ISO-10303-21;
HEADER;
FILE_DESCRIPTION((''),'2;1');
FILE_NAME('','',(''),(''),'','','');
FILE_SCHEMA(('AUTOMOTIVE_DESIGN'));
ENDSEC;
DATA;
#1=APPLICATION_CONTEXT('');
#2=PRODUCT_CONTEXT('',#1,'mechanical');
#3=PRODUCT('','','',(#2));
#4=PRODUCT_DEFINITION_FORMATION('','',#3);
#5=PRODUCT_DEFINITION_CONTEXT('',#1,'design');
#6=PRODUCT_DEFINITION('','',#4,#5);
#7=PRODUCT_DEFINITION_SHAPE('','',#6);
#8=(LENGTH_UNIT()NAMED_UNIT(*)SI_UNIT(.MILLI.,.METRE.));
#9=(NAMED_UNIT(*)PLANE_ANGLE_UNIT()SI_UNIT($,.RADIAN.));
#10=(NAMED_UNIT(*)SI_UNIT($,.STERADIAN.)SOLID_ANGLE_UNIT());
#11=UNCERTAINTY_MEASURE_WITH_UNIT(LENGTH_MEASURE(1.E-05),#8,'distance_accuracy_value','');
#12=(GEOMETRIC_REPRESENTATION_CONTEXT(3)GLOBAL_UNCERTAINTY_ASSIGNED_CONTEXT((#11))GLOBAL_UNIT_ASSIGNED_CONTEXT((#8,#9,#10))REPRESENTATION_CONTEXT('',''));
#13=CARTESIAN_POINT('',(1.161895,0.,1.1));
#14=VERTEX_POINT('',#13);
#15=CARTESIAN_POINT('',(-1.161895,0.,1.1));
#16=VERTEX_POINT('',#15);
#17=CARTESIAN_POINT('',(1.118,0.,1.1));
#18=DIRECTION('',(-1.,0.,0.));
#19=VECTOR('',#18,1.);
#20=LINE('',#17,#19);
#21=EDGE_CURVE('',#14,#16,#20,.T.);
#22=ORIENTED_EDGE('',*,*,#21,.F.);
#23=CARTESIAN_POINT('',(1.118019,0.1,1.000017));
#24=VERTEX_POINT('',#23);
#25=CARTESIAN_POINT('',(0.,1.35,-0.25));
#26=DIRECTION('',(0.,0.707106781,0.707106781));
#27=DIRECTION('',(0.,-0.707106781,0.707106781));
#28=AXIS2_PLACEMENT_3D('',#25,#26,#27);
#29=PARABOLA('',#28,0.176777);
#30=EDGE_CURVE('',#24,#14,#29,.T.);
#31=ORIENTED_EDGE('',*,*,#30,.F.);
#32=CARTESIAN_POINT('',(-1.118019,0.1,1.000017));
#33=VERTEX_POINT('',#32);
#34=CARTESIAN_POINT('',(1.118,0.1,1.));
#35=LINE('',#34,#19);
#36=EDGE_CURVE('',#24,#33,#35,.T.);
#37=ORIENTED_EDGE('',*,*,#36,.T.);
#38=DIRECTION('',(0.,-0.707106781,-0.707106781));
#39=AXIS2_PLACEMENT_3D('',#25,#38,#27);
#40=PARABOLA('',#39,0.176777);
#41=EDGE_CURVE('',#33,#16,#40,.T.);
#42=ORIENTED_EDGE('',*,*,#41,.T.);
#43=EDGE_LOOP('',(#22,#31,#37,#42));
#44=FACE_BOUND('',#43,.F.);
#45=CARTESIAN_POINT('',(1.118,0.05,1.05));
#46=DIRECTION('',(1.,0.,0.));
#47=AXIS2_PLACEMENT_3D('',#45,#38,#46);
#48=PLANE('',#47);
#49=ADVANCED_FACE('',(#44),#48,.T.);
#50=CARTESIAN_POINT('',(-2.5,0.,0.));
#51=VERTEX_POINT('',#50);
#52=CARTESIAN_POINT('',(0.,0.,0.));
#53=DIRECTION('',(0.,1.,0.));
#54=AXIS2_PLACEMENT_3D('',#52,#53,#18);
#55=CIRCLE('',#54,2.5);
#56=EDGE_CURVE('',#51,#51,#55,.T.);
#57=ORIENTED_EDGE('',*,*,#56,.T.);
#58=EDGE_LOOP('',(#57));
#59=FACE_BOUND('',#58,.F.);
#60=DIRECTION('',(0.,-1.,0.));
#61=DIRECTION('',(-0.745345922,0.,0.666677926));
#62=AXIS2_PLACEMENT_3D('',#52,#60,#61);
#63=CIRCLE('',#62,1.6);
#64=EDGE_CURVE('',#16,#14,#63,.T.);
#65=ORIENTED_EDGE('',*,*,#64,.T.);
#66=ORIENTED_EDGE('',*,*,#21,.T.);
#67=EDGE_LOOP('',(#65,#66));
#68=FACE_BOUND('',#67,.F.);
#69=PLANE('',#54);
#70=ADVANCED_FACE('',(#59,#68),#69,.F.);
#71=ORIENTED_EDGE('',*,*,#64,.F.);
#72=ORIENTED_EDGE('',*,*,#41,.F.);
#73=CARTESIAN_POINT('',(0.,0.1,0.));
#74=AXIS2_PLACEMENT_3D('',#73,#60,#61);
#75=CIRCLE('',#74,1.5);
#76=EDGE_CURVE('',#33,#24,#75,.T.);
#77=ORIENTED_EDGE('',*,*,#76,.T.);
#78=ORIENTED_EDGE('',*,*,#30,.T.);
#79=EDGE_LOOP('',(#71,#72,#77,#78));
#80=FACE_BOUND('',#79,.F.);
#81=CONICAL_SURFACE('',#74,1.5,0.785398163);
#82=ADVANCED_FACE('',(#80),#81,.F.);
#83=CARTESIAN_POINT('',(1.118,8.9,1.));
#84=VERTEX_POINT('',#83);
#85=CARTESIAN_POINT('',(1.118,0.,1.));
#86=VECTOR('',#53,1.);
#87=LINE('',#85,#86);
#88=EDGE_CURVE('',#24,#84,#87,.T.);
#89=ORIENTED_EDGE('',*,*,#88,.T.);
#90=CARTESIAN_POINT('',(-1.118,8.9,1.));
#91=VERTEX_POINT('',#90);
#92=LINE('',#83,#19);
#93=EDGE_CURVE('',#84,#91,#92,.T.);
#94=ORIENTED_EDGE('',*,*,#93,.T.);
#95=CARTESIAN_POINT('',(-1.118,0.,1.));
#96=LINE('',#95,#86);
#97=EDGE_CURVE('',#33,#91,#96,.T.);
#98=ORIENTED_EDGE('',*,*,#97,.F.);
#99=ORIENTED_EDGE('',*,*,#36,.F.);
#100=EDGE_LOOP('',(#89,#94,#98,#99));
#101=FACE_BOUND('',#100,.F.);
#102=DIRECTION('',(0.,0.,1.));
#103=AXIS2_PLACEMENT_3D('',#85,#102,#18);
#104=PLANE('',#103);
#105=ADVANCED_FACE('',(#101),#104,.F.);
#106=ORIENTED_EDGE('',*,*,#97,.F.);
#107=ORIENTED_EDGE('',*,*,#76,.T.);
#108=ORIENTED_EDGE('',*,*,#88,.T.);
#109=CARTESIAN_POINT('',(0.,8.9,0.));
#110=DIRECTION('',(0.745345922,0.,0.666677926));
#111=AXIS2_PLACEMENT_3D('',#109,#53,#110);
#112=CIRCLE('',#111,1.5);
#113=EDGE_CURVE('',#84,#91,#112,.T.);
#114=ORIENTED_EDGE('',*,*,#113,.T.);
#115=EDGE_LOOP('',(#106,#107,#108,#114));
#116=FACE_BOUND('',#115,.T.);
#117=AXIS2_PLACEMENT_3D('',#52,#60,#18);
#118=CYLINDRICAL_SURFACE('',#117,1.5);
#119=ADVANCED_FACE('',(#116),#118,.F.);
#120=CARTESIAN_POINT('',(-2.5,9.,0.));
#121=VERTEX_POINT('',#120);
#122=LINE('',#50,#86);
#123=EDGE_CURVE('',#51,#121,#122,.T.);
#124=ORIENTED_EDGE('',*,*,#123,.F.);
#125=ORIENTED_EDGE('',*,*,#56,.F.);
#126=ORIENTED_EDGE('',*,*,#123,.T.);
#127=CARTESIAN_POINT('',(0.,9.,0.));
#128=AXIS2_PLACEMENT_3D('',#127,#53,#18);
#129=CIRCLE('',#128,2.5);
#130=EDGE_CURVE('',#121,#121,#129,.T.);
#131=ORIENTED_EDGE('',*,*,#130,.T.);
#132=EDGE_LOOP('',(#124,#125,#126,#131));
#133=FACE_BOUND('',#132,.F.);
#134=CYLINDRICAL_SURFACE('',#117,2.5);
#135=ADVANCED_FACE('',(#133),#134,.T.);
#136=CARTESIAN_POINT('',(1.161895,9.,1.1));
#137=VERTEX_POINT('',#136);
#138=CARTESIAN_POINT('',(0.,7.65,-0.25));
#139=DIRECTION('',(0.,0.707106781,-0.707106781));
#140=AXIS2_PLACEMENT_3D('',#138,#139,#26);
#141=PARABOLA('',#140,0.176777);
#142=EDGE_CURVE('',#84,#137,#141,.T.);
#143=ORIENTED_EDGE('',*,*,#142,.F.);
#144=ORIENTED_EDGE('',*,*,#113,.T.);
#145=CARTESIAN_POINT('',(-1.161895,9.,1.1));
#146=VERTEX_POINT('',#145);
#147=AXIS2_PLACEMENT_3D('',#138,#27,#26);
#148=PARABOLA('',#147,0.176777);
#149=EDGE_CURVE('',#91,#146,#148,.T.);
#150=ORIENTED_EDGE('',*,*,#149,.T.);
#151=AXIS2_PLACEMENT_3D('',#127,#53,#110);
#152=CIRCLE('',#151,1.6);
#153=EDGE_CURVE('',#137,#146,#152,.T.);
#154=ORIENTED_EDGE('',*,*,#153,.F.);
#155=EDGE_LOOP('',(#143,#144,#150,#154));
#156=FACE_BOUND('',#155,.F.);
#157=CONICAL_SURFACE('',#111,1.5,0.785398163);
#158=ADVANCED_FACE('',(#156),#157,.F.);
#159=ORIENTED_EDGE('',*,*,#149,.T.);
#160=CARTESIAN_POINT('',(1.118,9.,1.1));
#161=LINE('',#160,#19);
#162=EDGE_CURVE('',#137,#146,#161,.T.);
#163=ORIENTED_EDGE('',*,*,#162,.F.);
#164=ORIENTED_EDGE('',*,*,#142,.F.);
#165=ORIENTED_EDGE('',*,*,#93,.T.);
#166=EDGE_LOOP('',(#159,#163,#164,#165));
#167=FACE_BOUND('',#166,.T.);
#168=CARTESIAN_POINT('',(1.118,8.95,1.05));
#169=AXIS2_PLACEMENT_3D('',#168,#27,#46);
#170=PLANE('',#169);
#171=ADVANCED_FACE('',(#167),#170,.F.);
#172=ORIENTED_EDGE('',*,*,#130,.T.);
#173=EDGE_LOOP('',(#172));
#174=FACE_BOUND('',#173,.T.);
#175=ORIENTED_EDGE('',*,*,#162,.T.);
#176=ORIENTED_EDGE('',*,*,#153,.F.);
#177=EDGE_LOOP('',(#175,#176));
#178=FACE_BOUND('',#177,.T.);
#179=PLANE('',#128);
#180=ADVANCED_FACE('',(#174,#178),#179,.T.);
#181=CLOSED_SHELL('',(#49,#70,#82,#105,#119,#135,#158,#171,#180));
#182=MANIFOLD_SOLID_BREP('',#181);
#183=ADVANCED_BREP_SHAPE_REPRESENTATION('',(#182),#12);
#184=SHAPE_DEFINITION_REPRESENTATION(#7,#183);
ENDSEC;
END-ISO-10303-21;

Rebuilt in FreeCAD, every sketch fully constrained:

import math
import FreeCAD as App
import Part
import Sketcher
from FreeCAD import Vector


def edges_at(feature, points):
    """Names of the edges that pass closest to the given points."""
    edges = feature.Shape.Edges
    near = lambda p: min(range(len(edges)), key=lambda i: edges[i].distToShape(Part.Vertex(*p))[0])
    return sorted({f"Edge{near(p) + 1}" for p in points})

doc = App.newDocument("Part")
body = doc.addObject("PartDesign::Body", "Body")

# Sketch on XZ plane
sketch1 = doc.addObject("Sketcher::SketchObject", "Sketch")
body.addObject(sketch1)
sketch1.AttachmentSupport = (doc.XZ_Plane, [""])
sketch1.MapMode = "FlatFace"
sketch1.addGeometry([
    Part.Circle(Vector(0, 0, 0), Vector(0, 0, 1), 2.5),
    Part.LineSegment(Vector(1.118, 1, 0), Vector(-1.118, 1, 0)),
    Part.ArcOfCircle(Part.Circle(Vector(0, 0, 0), Vector(0, 0, 1), 1.5), math.radians(138.18882), math.radians(401.81118)),
], False)
sketch1.addConstraint([
    Sketcher.Constraint("Coincident", 1, 1, 2, 2),
    Sketcher.Constraint("Coincident", 2, 1, 1, 2),
    Sketcher.Constraint("Horizontal", 1),
    Sketcher.Constraint("Coincident", 0, 3, -1, 1),
    Sketcher.Constraint("Coincident", 2, 3, -1, 1),
    Sketcher.Constraint("Diameter", 0, 5.0),
    Sketcher.Constraint("Radius", 2, 1.5),
    Sketcher.Constraint("DistanceX", 1, 2, 1, 1, 2.236),
])
pad1 = doc.addObject("PartDesign::Pad", "Pad")
body.addObject(pad1)
pad1.Profile = sketch1
pad1.Length = 9
pad1.Reversed = True
doc.recompute()

chamfer = doc.addObject("PartDesign::Chamfer", "Chamfer")
body.addObject(chamfer)
chamfer.Base = (pad1, edges_at(pad1, [
    (0, 0, -1.5),
    (0, 0, 1),
    (0, 9, 1),
    (0, 9, -1.5),
]))
chamfer.Size = 0.1

doc.recompute()
